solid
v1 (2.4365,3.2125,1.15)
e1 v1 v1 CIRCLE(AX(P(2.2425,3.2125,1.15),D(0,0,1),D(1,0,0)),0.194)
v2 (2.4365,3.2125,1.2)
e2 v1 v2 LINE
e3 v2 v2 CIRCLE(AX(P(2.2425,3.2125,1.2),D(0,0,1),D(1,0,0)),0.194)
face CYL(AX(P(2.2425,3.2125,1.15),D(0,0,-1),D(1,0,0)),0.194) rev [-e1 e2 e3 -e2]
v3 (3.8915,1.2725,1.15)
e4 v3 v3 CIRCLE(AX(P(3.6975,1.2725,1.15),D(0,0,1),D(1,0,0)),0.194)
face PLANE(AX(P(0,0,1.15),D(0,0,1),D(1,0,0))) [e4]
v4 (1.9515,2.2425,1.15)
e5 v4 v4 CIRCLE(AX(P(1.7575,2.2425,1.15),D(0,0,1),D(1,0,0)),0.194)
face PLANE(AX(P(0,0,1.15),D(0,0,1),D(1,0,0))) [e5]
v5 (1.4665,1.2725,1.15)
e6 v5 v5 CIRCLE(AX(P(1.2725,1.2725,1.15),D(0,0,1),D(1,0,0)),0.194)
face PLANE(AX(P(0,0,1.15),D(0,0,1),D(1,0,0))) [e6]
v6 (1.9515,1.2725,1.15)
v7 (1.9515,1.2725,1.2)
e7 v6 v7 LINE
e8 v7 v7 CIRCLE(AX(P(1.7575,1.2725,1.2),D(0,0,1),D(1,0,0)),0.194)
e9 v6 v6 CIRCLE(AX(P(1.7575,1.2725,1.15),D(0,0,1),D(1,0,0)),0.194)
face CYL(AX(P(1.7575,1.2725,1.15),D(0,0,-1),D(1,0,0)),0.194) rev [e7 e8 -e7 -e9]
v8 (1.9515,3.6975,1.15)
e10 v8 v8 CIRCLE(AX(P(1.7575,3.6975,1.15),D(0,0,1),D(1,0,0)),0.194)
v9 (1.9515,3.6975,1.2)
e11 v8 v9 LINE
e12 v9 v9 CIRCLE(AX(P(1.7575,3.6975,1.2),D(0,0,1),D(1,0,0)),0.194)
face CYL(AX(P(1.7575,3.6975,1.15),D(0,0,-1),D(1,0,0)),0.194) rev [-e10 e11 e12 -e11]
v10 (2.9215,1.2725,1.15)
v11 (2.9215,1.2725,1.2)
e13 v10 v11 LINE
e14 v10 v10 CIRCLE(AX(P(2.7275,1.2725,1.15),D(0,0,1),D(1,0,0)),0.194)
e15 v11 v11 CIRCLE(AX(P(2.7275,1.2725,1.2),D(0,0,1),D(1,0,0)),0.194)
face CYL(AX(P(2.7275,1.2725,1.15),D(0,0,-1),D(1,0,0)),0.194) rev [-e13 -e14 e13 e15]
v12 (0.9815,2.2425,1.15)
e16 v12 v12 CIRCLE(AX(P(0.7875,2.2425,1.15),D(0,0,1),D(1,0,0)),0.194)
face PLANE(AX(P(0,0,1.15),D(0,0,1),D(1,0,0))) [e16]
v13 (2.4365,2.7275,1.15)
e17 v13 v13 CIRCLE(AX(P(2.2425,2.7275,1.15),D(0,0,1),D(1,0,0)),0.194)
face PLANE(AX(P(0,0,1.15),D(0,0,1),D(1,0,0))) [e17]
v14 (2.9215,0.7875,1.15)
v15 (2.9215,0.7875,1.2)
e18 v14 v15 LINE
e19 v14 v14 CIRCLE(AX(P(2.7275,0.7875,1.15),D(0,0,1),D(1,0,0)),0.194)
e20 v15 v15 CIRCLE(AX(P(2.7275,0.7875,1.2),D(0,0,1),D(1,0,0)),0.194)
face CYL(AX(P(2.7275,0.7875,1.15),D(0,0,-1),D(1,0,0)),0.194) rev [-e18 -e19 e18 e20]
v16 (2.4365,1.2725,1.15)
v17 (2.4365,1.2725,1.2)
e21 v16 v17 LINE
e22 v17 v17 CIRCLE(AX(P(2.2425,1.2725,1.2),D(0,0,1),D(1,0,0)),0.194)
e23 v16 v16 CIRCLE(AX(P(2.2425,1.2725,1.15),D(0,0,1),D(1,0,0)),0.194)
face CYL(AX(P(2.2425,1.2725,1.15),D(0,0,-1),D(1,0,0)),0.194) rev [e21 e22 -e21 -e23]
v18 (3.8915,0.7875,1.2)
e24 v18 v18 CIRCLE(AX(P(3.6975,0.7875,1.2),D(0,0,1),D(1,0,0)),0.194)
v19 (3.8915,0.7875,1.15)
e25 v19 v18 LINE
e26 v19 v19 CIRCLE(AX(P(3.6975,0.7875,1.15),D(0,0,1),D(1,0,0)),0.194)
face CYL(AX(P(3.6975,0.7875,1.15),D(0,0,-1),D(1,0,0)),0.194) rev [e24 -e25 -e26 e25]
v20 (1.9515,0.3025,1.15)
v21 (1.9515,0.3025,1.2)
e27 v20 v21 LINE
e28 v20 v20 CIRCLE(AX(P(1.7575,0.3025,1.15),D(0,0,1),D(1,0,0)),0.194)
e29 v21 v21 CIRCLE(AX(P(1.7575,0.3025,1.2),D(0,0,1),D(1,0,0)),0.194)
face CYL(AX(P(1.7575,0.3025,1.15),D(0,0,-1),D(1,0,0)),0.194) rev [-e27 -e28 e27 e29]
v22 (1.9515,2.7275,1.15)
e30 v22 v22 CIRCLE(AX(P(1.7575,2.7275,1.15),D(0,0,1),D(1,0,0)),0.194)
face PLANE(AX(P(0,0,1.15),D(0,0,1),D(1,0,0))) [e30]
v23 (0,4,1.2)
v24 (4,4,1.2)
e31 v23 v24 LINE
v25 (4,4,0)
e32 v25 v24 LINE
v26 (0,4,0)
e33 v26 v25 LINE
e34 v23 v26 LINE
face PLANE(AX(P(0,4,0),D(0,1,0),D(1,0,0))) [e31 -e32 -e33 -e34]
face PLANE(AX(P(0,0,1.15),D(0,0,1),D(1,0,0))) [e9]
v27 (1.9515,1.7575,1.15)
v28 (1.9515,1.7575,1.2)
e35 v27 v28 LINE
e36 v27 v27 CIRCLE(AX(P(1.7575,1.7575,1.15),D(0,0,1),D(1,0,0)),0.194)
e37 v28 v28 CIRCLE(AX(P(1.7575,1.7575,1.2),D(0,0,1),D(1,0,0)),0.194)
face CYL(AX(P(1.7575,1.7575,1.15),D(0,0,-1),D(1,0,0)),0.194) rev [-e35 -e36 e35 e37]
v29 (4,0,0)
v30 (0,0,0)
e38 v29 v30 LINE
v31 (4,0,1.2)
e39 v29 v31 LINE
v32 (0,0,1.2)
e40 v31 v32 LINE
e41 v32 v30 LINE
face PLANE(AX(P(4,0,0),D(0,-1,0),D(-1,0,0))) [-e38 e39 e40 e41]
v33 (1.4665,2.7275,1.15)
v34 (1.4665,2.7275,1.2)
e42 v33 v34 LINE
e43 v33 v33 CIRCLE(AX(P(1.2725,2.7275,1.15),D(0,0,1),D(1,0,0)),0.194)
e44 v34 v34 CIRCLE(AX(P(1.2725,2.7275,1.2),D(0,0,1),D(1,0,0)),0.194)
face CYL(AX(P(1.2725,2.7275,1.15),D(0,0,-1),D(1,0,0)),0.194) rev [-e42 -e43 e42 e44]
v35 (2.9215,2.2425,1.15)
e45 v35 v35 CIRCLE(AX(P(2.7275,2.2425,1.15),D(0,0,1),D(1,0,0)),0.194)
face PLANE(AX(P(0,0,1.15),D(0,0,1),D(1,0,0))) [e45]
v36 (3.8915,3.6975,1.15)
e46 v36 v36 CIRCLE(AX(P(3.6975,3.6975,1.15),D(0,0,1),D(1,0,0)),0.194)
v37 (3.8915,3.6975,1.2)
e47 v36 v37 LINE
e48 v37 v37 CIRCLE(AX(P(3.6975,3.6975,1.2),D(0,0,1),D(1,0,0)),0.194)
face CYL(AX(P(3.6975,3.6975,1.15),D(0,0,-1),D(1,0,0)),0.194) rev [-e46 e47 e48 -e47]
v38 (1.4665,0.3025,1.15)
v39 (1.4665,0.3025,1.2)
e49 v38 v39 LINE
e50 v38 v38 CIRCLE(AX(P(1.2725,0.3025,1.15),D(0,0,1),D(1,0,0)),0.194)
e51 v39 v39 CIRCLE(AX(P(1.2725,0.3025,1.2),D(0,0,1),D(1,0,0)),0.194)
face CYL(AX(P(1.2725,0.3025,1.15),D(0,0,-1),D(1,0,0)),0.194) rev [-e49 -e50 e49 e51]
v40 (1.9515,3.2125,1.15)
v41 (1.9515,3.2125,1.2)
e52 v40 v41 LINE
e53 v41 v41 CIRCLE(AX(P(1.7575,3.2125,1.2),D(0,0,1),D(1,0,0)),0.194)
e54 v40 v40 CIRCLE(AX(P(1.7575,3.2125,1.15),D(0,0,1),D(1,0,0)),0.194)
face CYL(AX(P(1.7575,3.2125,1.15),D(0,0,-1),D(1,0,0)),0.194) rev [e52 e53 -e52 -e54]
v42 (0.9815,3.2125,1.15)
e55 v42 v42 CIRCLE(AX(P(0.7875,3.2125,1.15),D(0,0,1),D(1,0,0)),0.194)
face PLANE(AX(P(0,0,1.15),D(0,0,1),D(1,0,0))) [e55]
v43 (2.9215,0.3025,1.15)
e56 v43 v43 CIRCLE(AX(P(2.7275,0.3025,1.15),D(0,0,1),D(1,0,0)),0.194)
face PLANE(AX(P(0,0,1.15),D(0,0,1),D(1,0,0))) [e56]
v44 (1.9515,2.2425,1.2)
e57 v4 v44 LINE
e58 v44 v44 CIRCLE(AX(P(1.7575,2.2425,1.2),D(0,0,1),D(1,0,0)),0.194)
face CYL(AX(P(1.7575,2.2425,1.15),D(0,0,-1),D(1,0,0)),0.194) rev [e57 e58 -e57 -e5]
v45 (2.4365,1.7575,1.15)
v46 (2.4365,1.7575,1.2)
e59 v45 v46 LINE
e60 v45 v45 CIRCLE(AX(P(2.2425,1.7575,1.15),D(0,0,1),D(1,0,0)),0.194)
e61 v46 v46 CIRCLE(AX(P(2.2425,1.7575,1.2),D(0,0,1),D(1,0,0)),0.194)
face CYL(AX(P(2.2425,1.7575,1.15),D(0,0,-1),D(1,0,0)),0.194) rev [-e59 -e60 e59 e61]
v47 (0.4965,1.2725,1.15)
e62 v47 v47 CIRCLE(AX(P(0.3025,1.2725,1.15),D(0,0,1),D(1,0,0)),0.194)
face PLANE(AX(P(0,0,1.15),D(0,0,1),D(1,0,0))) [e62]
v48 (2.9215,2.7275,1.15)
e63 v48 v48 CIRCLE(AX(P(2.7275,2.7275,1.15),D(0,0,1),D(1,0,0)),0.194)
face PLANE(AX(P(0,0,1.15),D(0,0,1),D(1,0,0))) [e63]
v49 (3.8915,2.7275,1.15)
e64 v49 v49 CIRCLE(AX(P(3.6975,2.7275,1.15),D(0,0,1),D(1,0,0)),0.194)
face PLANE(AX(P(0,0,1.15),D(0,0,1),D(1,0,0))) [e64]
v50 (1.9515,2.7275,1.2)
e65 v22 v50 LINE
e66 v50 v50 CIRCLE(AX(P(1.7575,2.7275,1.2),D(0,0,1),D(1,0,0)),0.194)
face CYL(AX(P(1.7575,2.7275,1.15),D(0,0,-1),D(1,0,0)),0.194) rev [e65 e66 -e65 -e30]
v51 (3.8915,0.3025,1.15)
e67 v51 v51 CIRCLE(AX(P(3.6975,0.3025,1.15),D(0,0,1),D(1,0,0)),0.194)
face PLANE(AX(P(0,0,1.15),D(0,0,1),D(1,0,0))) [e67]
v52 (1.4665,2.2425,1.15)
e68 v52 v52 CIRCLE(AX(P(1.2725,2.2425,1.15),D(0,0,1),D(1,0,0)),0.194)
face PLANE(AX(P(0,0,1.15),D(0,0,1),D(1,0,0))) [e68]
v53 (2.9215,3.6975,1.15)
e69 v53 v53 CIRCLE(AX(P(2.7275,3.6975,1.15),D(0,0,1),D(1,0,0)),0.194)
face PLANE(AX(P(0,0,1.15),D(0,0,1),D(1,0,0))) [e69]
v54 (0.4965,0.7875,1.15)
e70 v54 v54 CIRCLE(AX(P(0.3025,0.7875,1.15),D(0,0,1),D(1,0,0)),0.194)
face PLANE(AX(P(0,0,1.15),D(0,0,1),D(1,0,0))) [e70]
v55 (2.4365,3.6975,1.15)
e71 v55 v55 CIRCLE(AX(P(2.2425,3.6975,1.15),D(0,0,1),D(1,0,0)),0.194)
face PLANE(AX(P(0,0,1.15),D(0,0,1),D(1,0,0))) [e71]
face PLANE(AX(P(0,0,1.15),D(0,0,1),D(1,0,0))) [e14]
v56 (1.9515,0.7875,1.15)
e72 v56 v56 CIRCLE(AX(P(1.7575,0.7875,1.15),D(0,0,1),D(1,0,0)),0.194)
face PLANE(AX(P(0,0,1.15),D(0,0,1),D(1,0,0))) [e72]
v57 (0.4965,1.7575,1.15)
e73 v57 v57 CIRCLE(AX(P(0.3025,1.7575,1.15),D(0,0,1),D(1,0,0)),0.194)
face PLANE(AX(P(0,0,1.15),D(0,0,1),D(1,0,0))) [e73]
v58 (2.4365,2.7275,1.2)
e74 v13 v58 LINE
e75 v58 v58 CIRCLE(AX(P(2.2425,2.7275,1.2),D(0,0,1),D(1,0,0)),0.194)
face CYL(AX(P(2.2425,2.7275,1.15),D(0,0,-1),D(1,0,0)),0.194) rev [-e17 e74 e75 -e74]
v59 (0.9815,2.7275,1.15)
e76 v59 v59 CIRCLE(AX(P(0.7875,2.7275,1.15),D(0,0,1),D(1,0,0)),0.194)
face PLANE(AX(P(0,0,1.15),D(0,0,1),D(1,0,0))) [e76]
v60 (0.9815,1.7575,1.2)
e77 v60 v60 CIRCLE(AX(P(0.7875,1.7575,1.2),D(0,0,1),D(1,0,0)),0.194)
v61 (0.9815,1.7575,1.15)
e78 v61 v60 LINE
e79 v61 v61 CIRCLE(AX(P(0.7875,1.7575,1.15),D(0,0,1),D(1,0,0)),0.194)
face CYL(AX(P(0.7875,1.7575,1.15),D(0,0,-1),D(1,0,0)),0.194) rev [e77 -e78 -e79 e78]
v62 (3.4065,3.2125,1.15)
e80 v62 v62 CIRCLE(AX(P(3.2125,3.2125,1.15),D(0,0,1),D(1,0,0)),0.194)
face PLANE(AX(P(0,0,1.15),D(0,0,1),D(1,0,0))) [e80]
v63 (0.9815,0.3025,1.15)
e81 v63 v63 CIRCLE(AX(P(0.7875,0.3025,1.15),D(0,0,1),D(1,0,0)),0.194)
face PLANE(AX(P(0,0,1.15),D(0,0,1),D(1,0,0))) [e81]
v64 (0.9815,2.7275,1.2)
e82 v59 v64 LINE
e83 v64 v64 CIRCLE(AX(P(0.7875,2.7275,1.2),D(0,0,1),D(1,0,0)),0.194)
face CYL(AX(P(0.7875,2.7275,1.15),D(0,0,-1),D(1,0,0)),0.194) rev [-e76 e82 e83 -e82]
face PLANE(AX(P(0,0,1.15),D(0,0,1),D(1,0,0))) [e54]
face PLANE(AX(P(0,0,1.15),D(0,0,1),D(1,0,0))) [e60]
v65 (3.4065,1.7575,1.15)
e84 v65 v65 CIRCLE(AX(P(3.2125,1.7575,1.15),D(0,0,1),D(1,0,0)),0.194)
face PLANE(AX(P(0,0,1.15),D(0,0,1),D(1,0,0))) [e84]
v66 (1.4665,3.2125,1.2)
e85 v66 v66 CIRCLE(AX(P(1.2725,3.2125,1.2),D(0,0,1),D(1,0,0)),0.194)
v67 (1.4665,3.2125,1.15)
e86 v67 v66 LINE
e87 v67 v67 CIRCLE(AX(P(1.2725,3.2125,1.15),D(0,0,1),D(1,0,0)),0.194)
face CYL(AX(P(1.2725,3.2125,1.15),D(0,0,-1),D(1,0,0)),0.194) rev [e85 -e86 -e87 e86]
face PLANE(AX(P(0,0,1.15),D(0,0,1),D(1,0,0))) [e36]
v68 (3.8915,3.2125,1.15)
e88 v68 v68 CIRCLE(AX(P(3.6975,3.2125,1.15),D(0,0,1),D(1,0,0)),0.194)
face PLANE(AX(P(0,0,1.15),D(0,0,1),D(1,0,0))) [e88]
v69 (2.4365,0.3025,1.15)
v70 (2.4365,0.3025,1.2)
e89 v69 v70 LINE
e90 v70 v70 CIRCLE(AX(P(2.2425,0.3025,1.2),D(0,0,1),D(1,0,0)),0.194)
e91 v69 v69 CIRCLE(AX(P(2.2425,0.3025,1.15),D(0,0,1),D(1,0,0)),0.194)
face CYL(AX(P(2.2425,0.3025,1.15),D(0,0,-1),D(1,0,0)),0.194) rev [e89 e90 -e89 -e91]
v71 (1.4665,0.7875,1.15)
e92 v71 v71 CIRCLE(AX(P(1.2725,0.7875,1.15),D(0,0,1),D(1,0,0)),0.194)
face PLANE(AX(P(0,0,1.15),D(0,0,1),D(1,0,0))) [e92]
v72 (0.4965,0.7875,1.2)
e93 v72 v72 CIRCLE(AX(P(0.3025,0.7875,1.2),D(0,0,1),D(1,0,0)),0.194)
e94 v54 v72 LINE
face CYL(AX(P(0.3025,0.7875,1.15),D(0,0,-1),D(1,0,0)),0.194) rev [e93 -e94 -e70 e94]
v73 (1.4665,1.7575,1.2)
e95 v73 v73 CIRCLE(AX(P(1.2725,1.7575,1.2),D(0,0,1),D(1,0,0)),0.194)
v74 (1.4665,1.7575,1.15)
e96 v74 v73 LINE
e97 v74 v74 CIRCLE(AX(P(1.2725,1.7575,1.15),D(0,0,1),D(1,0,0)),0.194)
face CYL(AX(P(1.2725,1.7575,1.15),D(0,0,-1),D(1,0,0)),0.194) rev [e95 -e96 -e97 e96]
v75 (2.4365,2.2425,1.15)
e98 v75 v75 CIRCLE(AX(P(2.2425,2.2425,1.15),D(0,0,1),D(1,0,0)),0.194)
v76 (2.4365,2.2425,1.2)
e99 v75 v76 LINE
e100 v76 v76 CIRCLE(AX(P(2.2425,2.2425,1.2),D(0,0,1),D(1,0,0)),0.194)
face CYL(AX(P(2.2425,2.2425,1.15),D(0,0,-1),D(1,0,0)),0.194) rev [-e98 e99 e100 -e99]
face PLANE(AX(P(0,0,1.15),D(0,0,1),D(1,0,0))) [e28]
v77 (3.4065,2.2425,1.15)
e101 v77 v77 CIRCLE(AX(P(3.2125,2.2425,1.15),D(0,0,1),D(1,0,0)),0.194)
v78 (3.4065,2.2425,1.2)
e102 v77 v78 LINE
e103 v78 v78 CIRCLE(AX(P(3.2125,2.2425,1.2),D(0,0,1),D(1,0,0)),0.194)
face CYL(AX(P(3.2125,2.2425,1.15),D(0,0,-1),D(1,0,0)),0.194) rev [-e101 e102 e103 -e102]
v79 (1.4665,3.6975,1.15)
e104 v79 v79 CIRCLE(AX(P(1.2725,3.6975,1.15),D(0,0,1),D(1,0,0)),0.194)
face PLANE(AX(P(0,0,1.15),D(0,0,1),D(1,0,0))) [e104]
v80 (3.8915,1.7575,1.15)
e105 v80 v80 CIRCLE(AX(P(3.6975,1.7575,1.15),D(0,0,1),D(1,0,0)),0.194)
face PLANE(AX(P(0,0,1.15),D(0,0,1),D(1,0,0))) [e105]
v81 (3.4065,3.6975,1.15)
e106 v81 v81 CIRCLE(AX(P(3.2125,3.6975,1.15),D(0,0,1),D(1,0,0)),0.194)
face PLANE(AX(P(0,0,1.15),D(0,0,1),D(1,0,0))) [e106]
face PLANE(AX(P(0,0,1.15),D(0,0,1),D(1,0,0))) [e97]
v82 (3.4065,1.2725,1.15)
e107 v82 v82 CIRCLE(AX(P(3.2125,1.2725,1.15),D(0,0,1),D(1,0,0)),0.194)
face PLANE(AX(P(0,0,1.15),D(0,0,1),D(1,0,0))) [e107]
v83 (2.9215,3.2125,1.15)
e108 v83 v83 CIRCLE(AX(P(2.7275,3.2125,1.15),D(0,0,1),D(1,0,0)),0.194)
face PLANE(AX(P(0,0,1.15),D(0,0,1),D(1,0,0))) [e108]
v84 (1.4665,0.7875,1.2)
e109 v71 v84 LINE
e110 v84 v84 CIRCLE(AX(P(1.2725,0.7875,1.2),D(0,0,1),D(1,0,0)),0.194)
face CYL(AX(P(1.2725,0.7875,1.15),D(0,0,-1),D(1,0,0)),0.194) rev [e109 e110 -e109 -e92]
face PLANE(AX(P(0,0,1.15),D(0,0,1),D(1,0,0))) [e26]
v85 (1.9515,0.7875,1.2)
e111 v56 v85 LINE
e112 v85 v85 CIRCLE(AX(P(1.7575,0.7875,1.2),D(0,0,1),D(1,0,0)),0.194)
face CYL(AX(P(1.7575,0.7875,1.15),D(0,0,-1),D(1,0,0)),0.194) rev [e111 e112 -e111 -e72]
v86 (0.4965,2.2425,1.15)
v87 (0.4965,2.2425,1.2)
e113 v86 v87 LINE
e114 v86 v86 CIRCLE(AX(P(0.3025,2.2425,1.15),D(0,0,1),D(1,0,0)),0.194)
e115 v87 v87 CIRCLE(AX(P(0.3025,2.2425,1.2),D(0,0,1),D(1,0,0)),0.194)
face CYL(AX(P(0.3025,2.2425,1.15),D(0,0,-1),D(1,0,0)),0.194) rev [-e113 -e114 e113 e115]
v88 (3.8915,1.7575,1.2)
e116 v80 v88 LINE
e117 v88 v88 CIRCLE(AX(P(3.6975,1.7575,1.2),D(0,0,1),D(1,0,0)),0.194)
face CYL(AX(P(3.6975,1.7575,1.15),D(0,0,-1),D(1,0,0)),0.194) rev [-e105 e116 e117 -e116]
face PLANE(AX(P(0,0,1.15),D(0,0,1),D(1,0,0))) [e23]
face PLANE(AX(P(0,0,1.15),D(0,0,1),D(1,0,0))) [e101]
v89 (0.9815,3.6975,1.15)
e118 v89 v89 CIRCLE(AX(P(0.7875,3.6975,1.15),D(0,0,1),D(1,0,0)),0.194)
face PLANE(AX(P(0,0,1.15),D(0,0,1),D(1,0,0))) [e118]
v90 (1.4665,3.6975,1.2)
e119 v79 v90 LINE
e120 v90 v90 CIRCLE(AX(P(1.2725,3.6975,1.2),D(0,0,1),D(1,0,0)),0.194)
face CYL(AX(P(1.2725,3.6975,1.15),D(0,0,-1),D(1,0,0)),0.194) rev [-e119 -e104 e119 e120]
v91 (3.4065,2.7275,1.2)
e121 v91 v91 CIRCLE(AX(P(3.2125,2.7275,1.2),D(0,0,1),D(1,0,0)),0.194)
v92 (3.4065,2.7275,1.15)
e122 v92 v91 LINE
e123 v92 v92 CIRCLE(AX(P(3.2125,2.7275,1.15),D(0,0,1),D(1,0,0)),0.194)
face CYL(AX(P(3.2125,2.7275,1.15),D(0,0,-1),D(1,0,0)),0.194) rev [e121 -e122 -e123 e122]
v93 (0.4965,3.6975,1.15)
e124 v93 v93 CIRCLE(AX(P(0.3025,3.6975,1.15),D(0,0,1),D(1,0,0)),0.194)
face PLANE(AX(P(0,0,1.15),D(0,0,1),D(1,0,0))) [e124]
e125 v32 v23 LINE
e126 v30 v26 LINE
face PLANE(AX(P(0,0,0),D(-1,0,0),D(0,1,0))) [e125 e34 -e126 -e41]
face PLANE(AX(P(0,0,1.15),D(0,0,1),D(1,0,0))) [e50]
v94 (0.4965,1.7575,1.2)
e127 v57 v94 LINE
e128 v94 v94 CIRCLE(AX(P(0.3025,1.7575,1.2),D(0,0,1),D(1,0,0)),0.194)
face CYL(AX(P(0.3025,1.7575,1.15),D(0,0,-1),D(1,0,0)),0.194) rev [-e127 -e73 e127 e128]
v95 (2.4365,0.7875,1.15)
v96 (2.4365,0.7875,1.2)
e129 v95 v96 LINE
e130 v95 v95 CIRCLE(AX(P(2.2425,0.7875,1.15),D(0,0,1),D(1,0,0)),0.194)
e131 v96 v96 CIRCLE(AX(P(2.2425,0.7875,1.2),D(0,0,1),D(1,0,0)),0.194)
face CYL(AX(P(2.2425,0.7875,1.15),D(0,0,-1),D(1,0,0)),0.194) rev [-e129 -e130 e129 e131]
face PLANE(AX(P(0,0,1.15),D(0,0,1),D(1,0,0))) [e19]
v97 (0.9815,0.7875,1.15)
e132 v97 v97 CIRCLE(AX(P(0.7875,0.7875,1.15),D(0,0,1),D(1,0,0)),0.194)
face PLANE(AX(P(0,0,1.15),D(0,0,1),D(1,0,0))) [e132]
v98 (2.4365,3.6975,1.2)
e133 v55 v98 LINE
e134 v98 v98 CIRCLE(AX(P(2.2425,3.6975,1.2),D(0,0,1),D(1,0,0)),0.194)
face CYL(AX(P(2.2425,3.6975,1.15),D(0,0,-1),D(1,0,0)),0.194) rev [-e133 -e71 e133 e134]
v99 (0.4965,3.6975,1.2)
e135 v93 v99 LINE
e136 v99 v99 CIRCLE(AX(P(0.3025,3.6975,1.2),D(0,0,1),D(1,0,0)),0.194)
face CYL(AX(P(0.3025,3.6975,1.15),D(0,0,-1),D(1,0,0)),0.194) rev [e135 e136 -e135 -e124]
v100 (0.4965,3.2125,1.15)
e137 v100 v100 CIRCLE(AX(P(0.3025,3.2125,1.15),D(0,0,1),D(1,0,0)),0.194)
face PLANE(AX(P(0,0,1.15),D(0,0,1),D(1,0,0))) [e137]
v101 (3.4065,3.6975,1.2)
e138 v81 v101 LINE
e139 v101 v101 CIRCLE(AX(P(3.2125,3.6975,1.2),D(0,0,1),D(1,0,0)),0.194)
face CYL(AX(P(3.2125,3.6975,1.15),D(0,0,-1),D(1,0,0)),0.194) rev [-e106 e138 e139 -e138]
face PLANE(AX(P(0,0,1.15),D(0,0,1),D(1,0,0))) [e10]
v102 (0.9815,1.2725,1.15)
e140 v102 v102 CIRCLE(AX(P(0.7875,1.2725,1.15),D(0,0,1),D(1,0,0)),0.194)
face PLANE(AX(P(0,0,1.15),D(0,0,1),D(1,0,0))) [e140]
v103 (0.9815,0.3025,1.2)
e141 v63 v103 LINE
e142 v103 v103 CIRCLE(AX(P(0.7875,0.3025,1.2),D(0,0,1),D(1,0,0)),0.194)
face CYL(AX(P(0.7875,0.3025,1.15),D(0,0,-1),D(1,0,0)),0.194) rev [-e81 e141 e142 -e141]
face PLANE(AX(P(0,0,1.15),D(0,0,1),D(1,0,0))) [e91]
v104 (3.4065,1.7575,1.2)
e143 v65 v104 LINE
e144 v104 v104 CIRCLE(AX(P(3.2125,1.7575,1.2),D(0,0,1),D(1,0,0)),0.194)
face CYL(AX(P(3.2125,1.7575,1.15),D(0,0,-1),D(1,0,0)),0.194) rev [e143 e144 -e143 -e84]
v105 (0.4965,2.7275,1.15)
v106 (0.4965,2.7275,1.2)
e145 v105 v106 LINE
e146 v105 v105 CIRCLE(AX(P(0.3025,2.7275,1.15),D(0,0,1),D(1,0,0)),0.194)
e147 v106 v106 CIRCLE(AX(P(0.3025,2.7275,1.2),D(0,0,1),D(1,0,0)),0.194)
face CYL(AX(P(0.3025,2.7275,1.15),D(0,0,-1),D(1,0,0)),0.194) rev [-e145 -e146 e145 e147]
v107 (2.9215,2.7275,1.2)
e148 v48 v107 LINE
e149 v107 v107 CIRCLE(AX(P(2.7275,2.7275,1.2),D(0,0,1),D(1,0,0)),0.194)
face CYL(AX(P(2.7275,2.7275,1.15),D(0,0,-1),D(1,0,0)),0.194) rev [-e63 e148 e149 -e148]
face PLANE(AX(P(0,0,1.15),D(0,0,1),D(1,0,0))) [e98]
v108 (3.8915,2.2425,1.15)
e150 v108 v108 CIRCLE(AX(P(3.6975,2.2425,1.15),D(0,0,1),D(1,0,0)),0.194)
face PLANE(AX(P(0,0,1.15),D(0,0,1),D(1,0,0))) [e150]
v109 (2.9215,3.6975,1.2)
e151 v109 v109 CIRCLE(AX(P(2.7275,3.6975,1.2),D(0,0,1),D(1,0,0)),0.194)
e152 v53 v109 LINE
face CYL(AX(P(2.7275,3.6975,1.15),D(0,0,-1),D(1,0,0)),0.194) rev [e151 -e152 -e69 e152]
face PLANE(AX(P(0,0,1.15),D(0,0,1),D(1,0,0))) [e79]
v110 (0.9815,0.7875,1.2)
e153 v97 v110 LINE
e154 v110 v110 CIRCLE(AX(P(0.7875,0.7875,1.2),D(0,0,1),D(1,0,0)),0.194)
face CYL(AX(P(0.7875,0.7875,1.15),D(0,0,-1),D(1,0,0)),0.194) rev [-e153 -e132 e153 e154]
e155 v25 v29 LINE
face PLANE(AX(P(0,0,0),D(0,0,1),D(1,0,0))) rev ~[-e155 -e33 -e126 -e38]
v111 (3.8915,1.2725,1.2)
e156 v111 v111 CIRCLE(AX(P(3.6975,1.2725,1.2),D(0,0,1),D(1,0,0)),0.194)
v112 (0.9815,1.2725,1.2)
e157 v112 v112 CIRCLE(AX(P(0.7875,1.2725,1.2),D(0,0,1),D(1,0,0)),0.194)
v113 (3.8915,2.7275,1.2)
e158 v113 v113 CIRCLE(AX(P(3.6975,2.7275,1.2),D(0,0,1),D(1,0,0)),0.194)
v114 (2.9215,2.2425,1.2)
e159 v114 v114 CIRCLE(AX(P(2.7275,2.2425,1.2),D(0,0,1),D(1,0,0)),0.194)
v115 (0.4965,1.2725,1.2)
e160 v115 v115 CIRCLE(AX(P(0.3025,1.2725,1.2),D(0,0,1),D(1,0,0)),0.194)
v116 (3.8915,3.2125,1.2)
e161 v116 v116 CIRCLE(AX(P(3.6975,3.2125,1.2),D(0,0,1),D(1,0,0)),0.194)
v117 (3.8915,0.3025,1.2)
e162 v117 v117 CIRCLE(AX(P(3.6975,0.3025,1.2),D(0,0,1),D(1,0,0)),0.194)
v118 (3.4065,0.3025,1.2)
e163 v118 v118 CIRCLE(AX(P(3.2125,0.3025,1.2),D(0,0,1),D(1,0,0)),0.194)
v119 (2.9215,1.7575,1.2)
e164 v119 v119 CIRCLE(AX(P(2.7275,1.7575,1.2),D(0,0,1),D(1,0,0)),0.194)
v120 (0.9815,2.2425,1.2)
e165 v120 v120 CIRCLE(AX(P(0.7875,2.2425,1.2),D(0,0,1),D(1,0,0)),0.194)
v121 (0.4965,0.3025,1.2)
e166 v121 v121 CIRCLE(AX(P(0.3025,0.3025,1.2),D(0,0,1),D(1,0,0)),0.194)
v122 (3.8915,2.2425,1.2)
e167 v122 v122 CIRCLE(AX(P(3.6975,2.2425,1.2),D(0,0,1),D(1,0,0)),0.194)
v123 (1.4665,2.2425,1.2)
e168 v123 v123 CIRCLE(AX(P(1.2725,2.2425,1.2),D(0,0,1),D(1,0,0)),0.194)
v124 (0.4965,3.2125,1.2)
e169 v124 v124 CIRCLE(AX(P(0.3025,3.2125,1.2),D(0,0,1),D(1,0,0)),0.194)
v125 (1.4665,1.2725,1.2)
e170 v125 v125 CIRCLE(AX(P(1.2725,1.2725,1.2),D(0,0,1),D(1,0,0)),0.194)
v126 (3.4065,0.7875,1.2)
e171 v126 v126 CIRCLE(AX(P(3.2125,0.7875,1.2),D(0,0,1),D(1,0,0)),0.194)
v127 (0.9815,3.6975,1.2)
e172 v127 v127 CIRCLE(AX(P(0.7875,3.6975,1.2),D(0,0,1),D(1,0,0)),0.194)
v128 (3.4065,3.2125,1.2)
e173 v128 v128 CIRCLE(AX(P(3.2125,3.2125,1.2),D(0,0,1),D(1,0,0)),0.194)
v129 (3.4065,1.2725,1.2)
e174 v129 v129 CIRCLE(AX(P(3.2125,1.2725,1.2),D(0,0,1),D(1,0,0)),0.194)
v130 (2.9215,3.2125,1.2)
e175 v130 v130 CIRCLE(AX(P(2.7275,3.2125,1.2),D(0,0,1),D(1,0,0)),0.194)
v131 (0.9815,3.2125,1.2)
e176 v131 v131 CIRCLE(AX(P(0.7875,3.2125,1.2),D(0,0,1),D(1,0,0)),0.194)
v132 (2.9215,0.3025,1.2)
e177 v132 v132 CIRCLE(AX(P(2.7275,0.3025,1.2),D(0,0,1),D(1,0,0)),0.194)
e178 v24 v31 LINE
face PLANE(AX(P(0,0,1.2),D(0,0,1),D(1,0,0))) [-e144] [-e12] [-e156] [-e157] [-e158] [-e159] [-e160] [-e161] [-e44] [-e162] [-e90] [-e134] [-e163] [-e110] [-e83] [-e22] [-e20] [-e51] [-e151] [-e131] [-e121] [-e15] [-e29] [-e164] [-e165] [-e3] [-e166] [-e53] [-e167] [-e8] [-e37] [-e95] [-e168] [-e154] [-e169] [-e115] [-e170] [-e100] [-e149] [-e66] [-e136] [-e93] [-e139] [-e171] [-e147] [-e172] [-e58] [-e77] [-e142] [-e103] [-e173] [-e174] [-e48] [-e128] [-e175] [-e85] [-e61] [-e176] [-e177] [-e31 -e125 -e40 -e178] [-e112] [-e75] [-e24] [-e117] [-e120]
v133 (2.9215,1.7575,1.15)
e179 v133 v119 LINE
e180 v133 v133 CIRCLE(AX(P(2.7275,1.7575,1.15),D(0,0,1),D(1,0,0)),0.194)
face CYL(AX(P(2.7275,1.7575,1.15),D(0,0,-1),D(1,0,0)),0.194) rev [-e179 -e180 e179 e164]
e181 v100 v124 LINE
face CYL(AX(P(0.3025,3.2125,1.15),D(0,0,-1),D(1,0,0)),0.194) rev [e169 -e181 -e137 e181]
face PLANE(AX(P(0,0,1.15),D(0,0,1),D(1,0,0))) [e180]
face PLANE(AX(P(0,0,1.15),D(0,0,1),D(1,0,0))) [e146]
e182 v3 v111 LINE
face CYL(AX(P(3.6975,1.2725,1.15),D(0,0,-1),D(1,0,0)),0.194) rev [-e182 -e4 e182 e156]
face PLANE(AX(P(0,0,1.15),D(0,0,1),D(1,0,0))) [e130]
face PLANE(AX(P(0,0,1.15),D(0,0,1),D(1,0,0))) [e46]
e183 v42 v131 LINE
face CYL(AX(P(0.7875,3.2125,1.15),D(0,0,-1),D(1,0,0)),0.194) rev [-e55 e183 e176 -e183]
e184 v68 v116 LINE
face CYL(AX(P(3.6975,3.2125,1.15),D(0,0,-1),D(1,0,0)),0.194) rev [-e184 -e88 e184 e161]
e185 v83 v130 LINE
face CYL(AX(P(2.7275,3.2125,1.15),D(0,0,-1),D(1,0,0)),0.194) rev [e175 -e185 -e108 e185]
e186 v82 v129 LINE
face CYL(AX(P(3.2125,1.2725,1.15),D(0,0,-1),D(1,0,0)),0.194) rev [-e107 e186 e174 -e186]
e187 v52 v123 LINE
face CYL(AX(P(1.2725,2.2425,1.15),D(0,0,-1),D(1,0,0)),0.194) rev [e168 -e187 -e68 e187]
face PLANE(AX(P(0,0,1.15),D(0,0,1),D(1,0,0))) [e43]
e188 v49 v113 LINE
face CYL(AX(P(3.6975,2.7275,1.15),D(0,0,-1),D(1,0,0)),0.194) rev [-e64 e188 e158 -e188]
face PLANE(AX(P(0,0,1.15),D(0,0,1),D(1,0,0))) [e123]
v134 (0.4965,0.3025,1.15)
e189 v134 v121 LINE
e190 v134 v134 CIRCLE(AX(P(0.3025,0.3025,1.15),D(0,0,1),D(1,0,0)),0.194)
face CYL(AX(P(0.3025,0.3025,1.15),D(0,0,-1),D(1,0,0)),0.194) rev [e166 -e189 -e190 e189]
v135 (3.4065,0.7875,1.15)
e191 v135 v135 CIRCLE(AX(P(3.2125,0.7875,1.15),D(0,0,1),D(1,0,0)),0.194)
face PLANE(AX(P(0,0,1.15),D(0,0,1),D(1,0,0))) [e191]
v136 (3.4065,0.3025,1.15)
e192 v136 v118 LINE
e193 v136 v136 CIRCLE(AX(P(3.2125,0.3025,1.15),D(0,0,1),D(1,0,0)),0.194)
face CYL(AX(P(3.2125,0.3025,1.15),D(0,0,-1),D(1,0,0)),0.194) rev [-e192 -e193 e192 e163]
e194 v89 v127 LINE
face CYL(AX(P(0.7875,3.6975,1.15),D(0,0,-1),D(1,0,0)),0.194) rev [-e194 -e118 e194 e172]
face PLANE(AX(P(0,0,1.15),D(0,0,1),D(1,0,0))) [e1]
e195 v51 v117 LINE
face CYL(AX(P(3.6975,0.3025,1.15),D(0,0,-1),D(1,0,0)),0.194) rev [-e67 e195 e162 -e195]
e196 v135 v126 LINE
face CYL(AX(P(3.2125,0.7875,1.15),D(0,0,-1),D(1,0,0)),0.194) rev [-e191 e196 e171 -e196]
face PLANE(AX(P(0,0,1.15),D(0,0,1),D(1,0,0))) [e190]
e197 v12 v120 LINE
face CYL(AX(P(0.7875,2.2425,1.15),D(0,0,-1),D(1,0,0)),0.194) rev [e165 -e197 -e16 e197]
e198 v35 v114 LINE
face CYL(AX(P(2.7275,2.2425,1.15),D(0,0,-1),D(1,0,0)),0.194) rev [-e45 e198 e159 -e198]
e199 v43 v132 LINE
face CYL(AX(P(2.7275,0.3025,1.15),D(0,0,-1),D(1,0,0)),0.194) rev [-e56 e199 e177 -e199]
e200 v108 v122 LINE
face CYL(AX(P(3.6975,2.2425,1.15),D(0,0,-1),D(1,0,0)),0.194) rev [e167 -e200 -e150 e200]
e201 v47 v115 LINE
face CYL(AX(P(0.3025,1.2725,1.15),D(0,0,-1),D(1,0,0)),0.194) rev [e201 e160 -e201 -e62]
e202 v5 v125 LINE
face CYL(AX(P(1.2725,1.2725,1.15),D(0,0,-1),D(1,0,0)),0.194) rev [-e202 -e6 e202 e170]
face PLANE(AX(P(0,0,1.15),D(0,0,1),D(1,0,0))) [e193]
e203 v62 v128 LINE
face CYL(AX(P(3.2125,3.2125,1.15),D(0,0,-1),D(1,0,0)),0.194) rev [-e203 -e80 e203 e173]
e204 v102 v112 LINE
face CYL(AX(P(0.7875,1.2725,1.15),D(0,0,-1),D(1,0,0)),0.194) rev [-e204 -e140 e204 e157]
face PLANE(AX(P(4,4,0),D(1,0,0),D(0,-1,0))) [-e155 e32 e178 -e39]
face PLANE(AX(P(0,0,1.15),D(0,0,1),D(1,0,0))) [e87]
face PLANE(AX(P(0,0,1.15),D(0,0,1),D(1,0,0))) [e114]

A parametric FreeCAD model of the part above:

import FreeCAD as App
import Part
import Sketcher

doc = App.newDocument("Part")
params = doc.addObject("Spreadsheet::Sheet", "Params")
for row, (alias, value) in enumerate([
    ("sketch1_width", "4 mm"),
    ("pad1_length", "1.15 mm"),
    ("sketch2_width", "4 mm"),
    ("pad2_length", "0.05 mm"),
], start=1):
    params.set(f"A{row}", alias)
    params.set(f"B{row}", "=" + value)
    params.setAlias(f"B{row}", alias)

body = doc.addObject("PartDesign::Body", "Body")

sketch1 = body.newObject("Sketcher::SketchObject", "Sketch")
sketch1.AttachmentSupport = (doc.getObject("XY_Plane"), [""])
sketch1.MapMode = "FlatFace"
sketch1.addGeometry(Part.LineSegment(App.Vector(0, 0, 0), App.Vector(4, 0, 0)), False)
sketch1.addGeometry(Part.LineSegment(App.Vector(4, 0, 0), App.Vector(4, 4, 0)), False)
sketch1.addGeometry(Part.LineSegment(App.Vector(4, 4, 0), App.Vector(0, 4, 0)), False)
sketch1.addGeometry(Part.LineSegment(App.Vector(0, 4, 0), App.Vector(0, 0, 0)), False)
sketch1.addConstraint(Sketcher.Constraint("Coincident", 0, 2, 1, 1))
sketch1.addConstraint(Sketcher.Constraint("Coincident", 1, 2, 2, 1))
sketch1.addConstraint(Sketcher.Constraint("Coincident", 2, 2, 3, 1))
sketch1.addConstraint(Sketcher.Constraint("Coincident", 3, 2, 0, 1))
sketch1.addConstraint(Sketcher.Constraint("Horizontal", 0))
sketch1.addConstraint(Sketcher.Constraint("Vertical", 1))
sketch1.addConstraint(Sketcher.Constraint("Horizontal", 2))
sketch1.addConstraint(Sketcher.Constraint("Vertical", 3))
sketch1.addConstraint(Sketcher.Constraint("Coincident", 3, 2, -1, 1))
sketch1.addConstraint(Sketcher.Constraint("Equal", 2, 1))
sketch1.addConstraint(Sketcher.Constraint("DistanceX", 0, 1, 0, 2, 4.0))
sketch1.setExpression("Constraints[10]", "Params.sketch1_width")
pad1 = body.newObject("PartDesign::Pad", "Pad")
pad1.Profile = sketch1
pad1.setExpression("Length", "Params.pad1_length")

sketch2 = body.newObject("Sketcher::SketchObject", "Sketch001")
sketch2.AttachmentSupport = (doc.getObject("XY_Plane"), [""])
sketch2.MapMode = "FlatFace"
sketch2.AttachmentOffset = App.Placement(App.Vector(0, 0, 1.15), App.Rotation())
sketch2.addGeometry(Part.LineSegment(App.Vector(0, 0, 0), App.Vector(4, 0, 0)), False)
sketch2.addGeometry(Part.LineSegment(App.Vector(4, 0, 0), App.Vector(4, 4, 0)), False)
sketch2.addGeometry(Part.LineSegment(App.Vector(4, 4, 0), App.Vector(0, 4, 0)), False)
sketch2.addGeometry(Part.LineSegment(App.Vector(0, 4, 0), App.Vector(0, 0, 0)), False)
sketch2.addGeometry(Part.Circle(App.Vector(0.3025, 0.3025, 0), App.Vector(0, 0, 1), 0.194), False)
sketch2.addGeometry(Part.Circle(App.Vector(0.7875, 0.3025, 0), App.Vector(0, 0, 1), 0.194), False)
sketch2.addGeometry(Part.Circle(App.Vector(0.3025, 0.7875, 0), App.Vector(0, 0, 1), 0.194), False)
sketch2.addGeometry(Part.Circle(App.Vector(0.7875, 0.7875, 0), App.Vector(0, 0, 1), 0.194), False)
sketch2.addGeometry(Part.Circle(App.Vector(1.2725, 0.3025, 0), App.Vector(0, 0, 1), 0.194), False)
sketch2.addGeometry(Part.Circle(App.Vector(1.7575, 0.3025, 0), App.Vector(0, 0, 1), 0.194), False)
sketch2.addGeometry(Part.Circle(App.Vector(1.2725, 0.7875, 0), App.Vector(0, 0, 1), 0.194), False)
sketch2.addGeometry(Part.Circle(App.Vector(1.7575, 0.7875, 0), App.Vector(0, 0, 1), 0.194), False)
sketch2.addGeometry(Part.Circle(App.Vector(0.3025, 1.2725, 0), App.Vector(0, 0, 1), 0.194), False)
sketch2.addGeometry(Part.Circle(App.Vector(0.7875, 1.2725, 0), App.Vector(0, 0, 1), 0.194), False)
sketch2.addGeometry(Part.Circle(App.Vector(0.3025, 1.7575, 0), App.Vector(0, 0, 1), 0.194), False)
sketch2.addGeometry(Part.Circle(App.Vector(0.7875, 1.7575, 0), App.Vector(0, 0, 1), 0.194), False)
sketch2.addGeometry(Part.Circle(App.Vector(1.2725, 1.2725, 0), App.Vector(0, 0, 1), 0.194), False)
sketch2.addGeometry(Part.Circle(App.Vector(1.7575, 1.2725, 0), App.Vector(0, 0, 1), 0.194), False)
sketch2.addGeometry(Part.Circle(App.Vector(1.2725, 1.7575, 0), App.Vector(0, 0, 1), 0.194), False)
sketch2.addGeometry(Part.Circle(App.Vector(1.7575, 1.7575, 0), App.Vector(0, 0, 1), 0.194), False)
sketch2.addGeometry(Part.Circle(App.Vector(2.2425, 0.3025, 0), App.Vector(0, 0, 1), 0.194), False)
sketch2.addGeometry(Part.Circle(App.Vector(2.7275, 0.3025, 0), App.Vector(0, 0, 1), 0.194), False)
sketch2.addGeometry(Part.Circle(App.Vector(2.2425, 0.7875, 0), App.Vector(0, 0, 1), 0.194), False)
sketch2.addGeometry(Part.Circle(App.Vector(2.7275, 0.7875, 0), App.Vector(0, 0, 1), 0.194), False)
sketch2.addGeometry(Part.Circle(App.Vector(3.2125, 0.3025, 0), App.Vector(0, 0, 1), 0.194), False)
sketch2.addGeometry(Part.Circle(App.Vector(3.6975, 0.3025, 0), App.Vector(0, 0, 1), 0.194), False)
sketch2.addGeometry(Part.Circle(App.Vector(3.2125, 0.7875, 0), App.Vector(0, 0, 1), 0.194), False)
sketch2.addGeometry(Part.Circle(App.Vector(3.6975, 0.7875, 0), App.Vector(0, 0, 1), 0.194), False)
sketch2.addGeometry(Part.Circle(App.Vector(2.2425, 1.2725, 0), App.Vector(0, 0, 1), 0.194), False)
sketch2.addGeometry(Part.Circle(App.Vector(2.7275, 1.2725, 0), App.Vector(0, 0, 1), 0.194), False)
sketch2.addGeometry(Part.Circle(App.Vector(2.2425, 1.7575, 0), App.Vector(0, 0, 1), 0.194), False)
sketch2.addGeometry(Part.Circle(App.Vector(2.7275, 1.7575, 0), App.Vector(0, 0, 1), 0.194), False)
sketch2.addGeometry(Part.Circle(App.Vector(3.2125, 1.2725, 0), App.Vector(0, 0, 1), 0.194), False)
sketch2.addGeometry(Part.Circle(App.Vector(3.6975, 1.2725, 0), App.Vector(0, 0, 1), 0.194), False)
sketch2.addGeometry(Part.Circle(App.Vector(3.2125, 1.7575, 0), App.Vector(0, 0, 1), 0.194), False)
sketch2.addGeometry(Part.Circle(App.Vector(3.6975, 1.7575, 0), App.Vector(0, 0, 1), 0.194), False)
sketch2.addGeometry(Part.Circle(App.Vector(0.3025, 2.2425, 0), App.Vector(0, 0, 1), 0.194), False)
sketch2.addGeometry(Part.Circle(App.Vector(0.7875, 2.2425, 0), App.Vector(0, 0, 1), 0.194), False)
sketch2.addGeometry(Part.Circle(App.Vector(0.3025, 2.7275, 0), App.Vector(0, 0, 1), 0.194), False)
sketch2.addGeometry(Part.Circle(App.Vector(0.7875, 2.7275, 0), App.Vector(0, 0, 1), 0.194), False)
sketch2.addGeometry(Part.Circle(App.Vector(1.2725, 2.2425, 0), App.Vector(0, 0, 1), 0.194), False)
sketch2.addGeometry(Part.Circle(App.Vector(1.7575, 2.2425, 0), App.Vector(0, 0, 1), 0.194), False)
sketch2.addGeometry(Part.Circle(App.Vector(1.2725, 2.7275, 0), App.Vector(0, 0, 1), 0.194), False)
sketch2.addGeometry(Part.Circle(App.Vector(1.7575, 2.7275, 0), App.Vector(0, 0, 1), 0.194), False)
sketch2.addGeometry(Part.Circle(App.Vector(0.3025, 3.2125, 0), App.Vector(0, 0, 1), 0.194), False)
sketch2.addGeometry(Part.Circle(App.Vector(0.7875, 3.2125, 0), App.Vector(0, 0, 1), 0.194), False)
sketch2.addGeometry(Part.Circle(App.Vector(0.3025, 3.6975, 0), App.Vector(0, 0, 1), 0.194), False)
sketch2.addGeometry(Part.Circle(App.Vector(0.7875, 3.6975, 0), App.Vector(0, 0, 1), 0.194), False)
sketch2.addGeometry(Part.Circle(App.Vector(1.2725, 3.2125, 0), App.Vector(0, 0, 1), 0.194), False)
sketch2.addGeometry(Part.Circle(App.Vector(1.7575, 3.2125, 0), App.Vector(0, 0, 1), 0.194), False)
sketch2.addGeometry(Part.Circle(App.Vector(1.2725, 3.6975, 0), App.Vector(0, 0, 1), 0.194), False)
sketch2.addGeometry(Part.Circle(App.Vector(1.7575, 3.6975, 0), App.Vector(0, 0, 1), 0.194), False)
sketch2.addGeometry(Part.Circle(App.Vector(2.2425, 2.2425, 0), App.Vector(0, 0, 1), 0.194), False)
sketch2.addGeometry(Part.Circle(App.Vector(2.7275, 2.2425, 0), App.Vector(0, 0, 1), 0.194), False)
sketch2.addGeometry(Part.Circle(App.Vector(2.2425, 2.7275, 0), App.Vector(0, 0, 1), 0.194), False)
sketch2.addGeometry(Part.Circle(App.Vector(2.7275, 2.7275, 0), App.Vector(0, 0, 1), 0.194), False)
sketch2.addGeometry(Part.Circle(App.Vector(3.2125, 2.2425, 0), App.Vector(0, 0, 1), 0.194), False)
sketch2.addGeometry(Part.Circle(App.Vector(3.6975, 2.2425, 0), App.Vector(0, 0, 1), 0.194), False)
sketch2.addGeometry(Part.Circle(App.Vector(3.2125, 2.7275, 0), App.Vector(0, 0, 1), 0.194), False)
sketch2.addGeometry(Part.Circle(App.Vector(3.6975, 2.7275, 0), App.Vector(0, 0, 1), 0.194), False)
sketch2.addGeometry(Part.Circle(App.Vector(2.2425, 3.2125, 0), App.Vector(0, 0, 1), 0.194), False)
sketch2.addGeometry(Part.Circle(App.Vector(2.7275, 3.2125, 0), App.Vector(0, 0, 1), 0.194), False)
sketch2.addGeometry(Part.Circle(App.Vector(2.2425, 3.6975, 0), App.Vector(0, 0, 1), 0.194), False)
sketch2.addGeometry(Part.Circle(App.Vector(2.7275, 3.6975, 0), App.Vector(0, 0, 1), 0.194), False)
sketch2.addGeometry(Part.Circle(App.Vector(3.2125, 3.2125, 0), App.Vector(0, 0, 1), 0.194), False)
sketch2.addGeometry(Part.Circle(App.Vector(3.6975, 3.2125, 0), App.Vector(0, 0, 1), 0.194), False)
sketch2.addGeometry(Part.Circle(App.Vector(3.2125, 3.6975, 0), App.Vector(0, 0, 1), 0.194), False)
sketch2.addGeometry(Part.Circle(App.Vector(3.6975, 3.6975, 0), App.Vector(0, 0, 1), 0.194), False)
sketch2.addConstraint(Sketcher.Constraint("Coincident", 0, 2, 1, 1))
sketch2.addConstraint(Sketcher.Constraint("Coincident", 1, 2, 2, 1))
sketch2.addConstraint(Sketcher.Constraint("Coincident", 2, 2, 3, 1))
sketch2.addConstraint(Sketcher.Constraint("Coincident", 3, 2, 0, 1))
sketch2.addConstraint(Sketcher.Constraint("Horizontal", 0))
sketch2.addConstraint(Sketcher.Constraint("Vertical", 1))
sketch2.addConstraint(Sketcher.Constraint("Horizontal", 2))
sketch2.addConstraint(Sketcher.Constraint("Vertical", 3))
sketch2.addConstraint(Sketcher.Constraint("Coincident", 3, 2, -1, 1))
sketch2.addConstraint(Sketcher.Constraint("Equal", 4, 5))
sketch2.addConstraint(Sketcher.Constraint("Equal", 5, 6))
sketch2.addConstraint(Sketcher.Constraint("Equal", 6, 7))
sketch2.addConstraint(Sketcher.Constraint("Equal", 7, 8))
sketch2.addConstraint(Sketcher.Constraint("Equal", 8, 9))
sketch2.addConstraint(Sketcher.Constraint("Equal", 9, 10))
sketch2.addConstraint(Sketcher.Constraint("Equal", 10, 11))
sketch2.addConstraint(Sketcher.Constraint("Equal", 11, 12))
sketch2.addConstraint(Sketcher.Constraint("Equal", 12, 13))
sketch2.addConstraint(Sketcher.Constraint("Equal", 13, 14))
sketch2.addConstraint(Sketcher.Constraint("Equal", 14, 15))
sketch2.addConstraint(Sketcher.Constraint("Equal", 15, 16))
sketch2.addConstraint(Sketcher.Constraint("Equal", 16, 17))
sketch2.addConstraint(Sketcher.Constraint("Equal", 17, 18))
sketch2.addConstraint(Sketcher.Constraint("Equal", 18, 19))
sketch2.addConstraint(Sketcher.Constraint("Equal", 19, 20))
sketch2.addConstraint(Sketcher.Constraint("Equal", 20, 21))
sketch2.addConstraint(Sketcher.Constraint("Equal", 21, 22))
sketch2.addConstraint(Sketcher.Constraint("Equal", 22, 23))
sketch2.addConstraint(Sketcher.Constraint("Equal", 23, 24))
sketch2.addConstraint(Sketcher.Constraint("Equal", 24, 25))
sketch2.addConstraint(Sketcher.Constraint("Equal", 25, 26))
sketch2.addConstraint(Sketcher.Constraint("Equal", 26, 27))
sketch2.addConstraint(Sketcher.Constraint("Equal", 27, 28))
sketch2.addConstraint(Sketcher.Constraint("Equal", 28, 29))
sketch2.addConstraint(Sketcher.Constraint("Equal", 29, 30))
sketch2.addConstraint(Sketcher.Constraint("Equal", 30, 31))
sketch2.addConstraint(Sketcher.Constraint("Equal", 31, 32))
sketch2.addConstraint(Sketcher.Constraint("Equal", 32, 33))
sketch2.addConstraint(Sketcher.Constraint("Equal", 33, 34))
sketch2.addConstraint(Sketcher.Constraint("Equal", 34, 35))
sketch2.addConstraint(Sketcher.Constraint("Equal", 35, 36))
sketch2.addConstraint(Sketcher.Constraint("Equal", 36, 37))
sketch2.addConstraint(Sketcher.Constraint("Equal", 37, 38))
sketch2.addConstraint(Sketcher.Constraint("Equal", 38, 39))
sketch2.addConstraint(Sketcher.Constraint("Equal", 39, 40))
sketch2.addConstraint(Sketcher.Constraint("Equal", 40, 41))
sketch2.addConstraint(Sketcher.Constraint("Equal", 41, 42))
sketch2.addConstraint(Sketcher.Constraint("Equal", 42, 43))
sketch2.addConstraint(Sketcher.Constraint("Equal", 43, 44))
sketch2.addConstraint(Sketcher.Constraint("Equal", 44, 45))
sketch2.addConstraint(Sketcher.Constraint("Equal", 45, 46))
sketch2.addConstraint(Sketcher.Constraint("Equal", 46, 47))
sketch2.addConstraint(Sketcher.Constraint("Equal", 47, 48))
sketch2.addConstraint(Sketcher.Constraint("Equal", 48, 49))
sketch2.addConstraint(Sketcher.Constraint("Equal", 49, 50))
sketch2.addConstraint(Sketcher.Constraint("Equal", 50, 51))
sketch2.addConstraint(Sketcher.Constraint("Equal", 51, 52))
sketch2.addConstraint(Sketcher.Constraint("Equal", 52, 53))
sketch2.addConstraint(Sketcher.Constraint("Equal", 53, 54))
sketch2.addConstraint(Sketcher.Constraint("Equal", 54, 55))
sketch2.addConstraint(Sketcher.Constraint("Equal", 55, 56))
sketch2.addConstraint(Sketcher.Constraint("Equal", 56, 57))
sketch2.addConstraint(Sketcher.Constraint("Equal", 57, 58))
sketch2.addConstraint(Sketcher.Constraint("Equal", 58, 59))
sketch2.addConstraint(Sketcher.Constraint("Equal", 59, 60))
sketch2.addConstraint(Sketcher.Constraint("Equal", 60, 61))
sketch2.addConstraint(Sketcher.Constraint("Equal", 61, 62))
sketch2.addConstraint(Sketcher.Constraint("Equal", 62, 63))
sketch2.addConstraint(Sketcher.Constraint("Equal", 63, 64))
sketch2.addConstraint(Sketcher.Constraint("Equal", 64, 65))
sketch2.addConstraint(Sketcher.Constraint("Equal", 65, 66))
sketch2.addConstraint(Sketcher.Constraint("Equal", 66, 67))
sketch2.addConstraint(Sketcher.Constraint("Horizontal", 4, 3, 5, 3))
sketch2.addConstraint(Sketcher.Constraint("Horizontal", 6, 3, 7, 3))
sketch2.addConstraint(Sketcher.Constraint("Horizontal", 5, 3, 8, 3))
sketch2.addConstraint(Sketcher.Constraint("Horizontal", 8, 3, 9, 3))
sketch2.addConstraint(Sketcher.Constraint("Horizontal", 7, 3, 10, 3))
sketch2.addConstraint(Sketcher.Constraint("Horizontal", 10, 3, 11, 3))
sketch2.addConstraint(Sketcher.Constraint("Horizontal", 12, 3, 13, 3))
sketch2.addConstraint(Sketcher.Constraint("Horizontal", 14, 3, 15, 3))
sketch2.addConstraint(Sketcher.Constraint("Horizontal", 13, 3, 16, 3))
sketch2.addConstraint(Sketcher.Constraint("Horizontal", 16, 3, 17, 3))
sketch2.addConstraint(Sketcher.Constraint("Horizontal", 15, 3, 18, 3))
sketch2.addConstraint(Sketcher.Constraint("Horizontal", 18, 3, 19, 3))
sketch2.addConstraint(Sketcher.Constraint("Horizontal", 9, 3, 20, 3))
sketch2.addConstraint(Sketcher.Constraint("Horizontal", 20, 3, 21, 3))
sketch2.addConstraint(Sketcher.Constraint("Horizontal", 11, 3, 22, 3))
sketch2.addConstraint(Sketcher.Constraint("Horizontal", 22, 3, 23, 3))
sketch2.addConstraint(Sketcher.Constraint("Horizontal", 21, 3, 24, 3))
sketch2.addConstraint(Sketcher.Constraint("Horizontal", 24, 3, 25, 3))
sketch2.addConstraint(Sketcher.Constraint("Horizontal", 23, 3, 26, 3))
sketch2.addConstraint(Sketcher.Constraint("Horizontal", 26, 3, 27, 3))
sketch2.addConstraint(Sketcher.Constraint("Horizontal", 17, 3, 28, 3))
sketch2.addConstraint(Sketcher.Constraint("Horizontal", 28, 3, 29, 3))
sketch2.addConstraint(Sketcher.Constraint("Horizontal", 19, 3, 30, 3))
sketch2.addConstraint(Sketcher.Constraint("Horizontal", 30, 3, 31, 3))
sketch2.addConstraint(Sketcher.Constraint("Horizontal", 29, 3, 32, 3))
sketch2.addConstraint(Sketcher.Constraint("Horizontal", 32, 3, 33, 3))
sketch2.addConstraint(Sketcher.Constraint("Horizontal", 31, 3, 34, 3))
sketch2.addConstraint(Sketcher.Constraint("Horizontal", 34, 3, 35, 3))
sketch2.addConstraint(Sketcher.Constraint("Horizontal", 36, 3, 37, 3))
sketch2.addConstraint(Sketcher.Constraint("Horizontal", 38, 3, 39, 3))
sketch2.addConstraint(Sketcher.Constraint("Horizontal", 37, 3, 40, 3))
sketch2.addConstraint(Sketcher.Constraint("Horizontal", 40, 3, 41, 3))
sketch2.addConstraint(Sketcher.Constraint("Horizontal", 39, 3, 42, 3))
sketch2.addConstraint(Sketcher.Constraint("Horizontal", 42, 3, 43, 3))
sketch2.addConstraint(Sketcher.Constraint("Horizontal", 44, 3, 45, 3))
sketch2.addConstraint(Sketcher.Constraint("Horizontal", 46, 3, 47, 3))
sketch2.addConstraint(Sketcher.Constraint("Horizontal", 45, 3, 48, 3))
sketch2.addConstraint(Sketcher.Constraint("Horizontal", 48, 3, 49, 3))
sketch2.addConstraint(Sketcher.Constraint("Horizontal", 47, 3, 50, 3))
sketch2.addConstraint(Sketcher.Constraint("Horizontal", 50, 3, 51, 3))
sketch2.addConstraint(Sketcher.Constraint("Horizontal", 41, 3, 52, 3))
sketch2.addConstraint(Sketcher.Constraint("Horizontal", 52, 3, 53, 3))
sketch2.addConstraint(Sketcher.Constraint("Horizontal", 43, 3, 54, 3))
sketch2.addConstraint(Sketcher.Constraint("Horizontal", 54, 3, 55, 3))
sketch2.addConstraint(Sketcher.Constraint("Horizontal", 53, 3, 56, 3))
sketch2.addConstraint(Sketcher.Constraint("Horizontal", 56, 3, 57, 3))
sketch2.addConstraint(Sketcher.Constraint("Horizontal", 55, 3, 58, 3))
sketch2.addConstraint(Sketcher.Constraint("Horizontal", 58, 3, 59, 3))
sketch2.addConstraint(Sketcher.Constraint("Horizontal", 49, 3, 60, 3))
sketch2.addConstraint(Sketcher.Constraint("Horizontal", 60, 3, 61, 3))
sketch2.addConstraint(Sketcher.Constraint("Horizontal", 51, 3, 62, 3))
sketch2.addConstraint(Sketcher.Constraint("Horizontal", 62, 3, 63, 3))
sketch2.addConstraint(Sketcher.Constraint("Horizontal", 61, 3, 64, 3))
sketch2.addConstraint(Sketcher.Constraint("Horizontal", 64, 3, 65, 3))
sketch2.addConstraint(Sketcher.Constraint("Horizontal", 63, 3, 66, 3))
sketch2.addConstraint(Sketcher.Constraint("Horizontal", 66, 3, 67, 3))
sketch2.addConstraint(Sketcher.Constraint("Vertical", 4, 3, 6, 3))
sketch2.addConstraint(Sketcher.Constraint("Vertical", 5, 3, 7, 3))
sketch2.addConstraint(Sketcher.Constraint("Vertical", 8, 3, 10, 3))
sketch2.addConstraint(Sketcher.Constraint("Vertical", 9, 3, 11, 3))
sketch2.addConstraint(Sketcher.Constraint("Vertical", 6, 3, 12, 3))
sketch2.addConstraint(Sketcher.Constraint("Vertical", 7, 3, 13, 3))
sketch2.addConstraint(Sketcher.Constraint("Vertical", 12, 3, 14, 3))
sketch2.addConstraint(Sketcher.Constraint("Vertical", 13, 3, 15, 3))
sketch2.addConstraint(Sketcher.Constraint("Vertical", 10, 3, 16, 3))
sketch2.addConstraint(Sketcher.Constraint("Vertical", 11, 3, 17, 3))
sketch2.addConstraint(Sketcher.Constraint("Vertical", 16, 3, 18, 3))
sketch2.addConstraint(Sketcher.Constraint("Vertical", 17, 3, 19, 3))
sketch2.addConstraint(Sketcher.Constraint("Vertical", 20, 3, 22, 3))
sketch2.addConstraint(Sketcher.Constraint("Vertical", 21, 3, 23, 3))
sketch2.addConstraint(Sketcher.Constraint("Vertical", 24, 3, 26, 3))
sketch2.addConstraint(Sketcher.Constraint("Vertical", 25, 3, 27, 3))
sketch2.addConstraint(Sketcher.Constraint("Vertical", 22, 3, 28, 3))
sketch2.addConstraint(Sketcher.Constraint("Vertical", 23, 3, 29, 3))
sketch2.addConstraint(Sketcher.Constraint("Vertical", 28, 3, 30, 3))
sketch2.addConstraint(Sketcher.Constraint("Vertical", 29, 3, 31, 3))
sketch2.addConstraint(Sketcher.Constraint("Vertical", 26, 3, 32, 3))
sketch2.addConstraint(Sketcher.Constraint("Vertical", 27, 3, 33, 3))
sketch2.addConstraint(Sketcher.Constraint("Vertical", 32, 3, 34, 3))
sketch2.addConstraint(Sketcher.Constraint("Vertical", 33, 3, 35, 3))
sketch2.addConstraint(Sketcher.Constraint("Vertical", 14, 3, 36, 3))
sketch2.addConstraint(Sketcher.Constraint("Vertical", 15, 3, 37, 3))
sketch2.addConstraint(Sketcher.Constraint("Vertical", 36, 3, 38, 3))
sketch2.addConstraint(Sketcher.Constraint("Vertical", 37, 3, 39, 3))
sketch2.addConstraint(Sketcher.Constraint("Vertical", 18, 3, 40, 3))
sketch2.addConstraint(Sketcher.Constraint("Vertical", 19, 3, 41, 3))
sketch2.addConstraint(Sketcher.Constraint("Vertical", 40, 3, 42, 3))
sketch2.addConstraint(Sketcher.Constraint("Vertical", 41, 3, 43, 3))
sketch2.addConstraint(Sketcher.Constraint("Vertical", 38, 3, 44, 3))
sketch2.addConstraint(Sketcher.Constraint("Vertical", 39, 3, 45, 3))
sketch2.addConstraint(Sketcher.Constraint("Vertical", 44, 3, 46, 3))
sketch2.addConstraint(Sketcher.Constraint("Vertical", 45, 3, 47, 3))
sketch2.addConstraint(Sketcher.Constraint("Vertical", 42, 3, 48, 3))
sketch2.addConstraint(Sketcher.Constraint("Vertical", 43, 3, 49, 3))
sketch2.addConstraint(Sketcher.Constraint("Vertical", 48, 3, 50, 3))
sketch2.addConstraint(Sketcher.Constraint("Vertical", 49, 3, 51, 3))
sketch2.addConstraint(Sketcher.Constraint("Vertical", 30, 3, 52, 3))
sketch2.addConstraint(Sketcher.Constraint("Vertical", 31, 3, 53, 3))
sketch2.addConstraint(Sketcher.Constraint("Vertical", 52, 3, 54, 3))
sketch2.addConstraint(Sketcher.Constraint("Vertical", 53, 3, 55, 3))
sketch2.addConstraint(Sketcher.Constraint("Vertical", 34, 3, 56, 3))
sketch2.addConstraint(Sketcher.Constraint("Vertical", 35, 3, 57, 3))
sketch2.addConstraint(Sketcher.Constraint("Vertical", 56, 3, 58, 3))
sketch2.addConstraint(Sketcher.Constraint("Vertical", 57, 3, 59, 3))
sketch2.addConstraint(Sketcher.Constraint("Vertical", 54, 3, 60, 3))
sketch2.addConstraint(Sketcher.Constraint("Vertical", 55, 3, 61, 3))
sketch2.addConstraint(Sketcher.Constraint("Vertical", 60, 3, 62, 3))
sketch2.addConstraint(Sketcher.Constraint("Vertical", 61, 3, 63, 3))
sketch2.addConstraint(Sketcher.Constraint("Vertical", 58, 3, 64, 3))
sketch2.addConstraint(Sketcher.Constraint("Vertical", 59, 3, 65, 3))
sketch2.addConstraint(Sketcher.Constraint("Vertical", 64, 3, 66, 3))
sketch2.addConstraint(Sketcher.Constraint("Vertical", 65, 3, 67, 3))
sketch2.addConstraint(Sketcher.Constraint("Equal", 2, 1))
sketch2.addConstraint(Sketcher.Constraint("DistanceX", 0, 1, 0, 2, 4.0))
sketch2.addConstraint(Sketcher.Constraint("Diameter", 4, 0.388))
sketch2.addConstraint(Sketcher.Constraint("DistanceX", -1, 1, 4, 3, 0.3025))
sketch2.addConstraint(Sketcher.Constraint("DistanceY", -1, 1, 4, 3, 0.3025))
sketch2.addConstraint(Sketcher.Constraint("DistanceX", -1, 1, 5, 3, 0.7875))
sketch2.addConstraint(Sketcher.Constraint("DistanceY", -1, 1, 6, 3, 0.7875))
sketch2.addConstraint(Sketcher.Constraint("DistanceX", -1, 1, 8, 3, 1.2725))
sketch2.addConstraint(Sketcher.Constraint("DistanceX", -1, 1, 9, 3, 1.7575))
sketch2.addConstraint(Sketcher.Constraint("DistanceY", -1, 1, 12, 3, 1.2725))
sketch2.addConstraint(Sketcher.Constraint("DistanceY", -1, 1, 14, 3, 1.7575))
sketch2.addConstraint(Sketcher.Constraint("DistanceX", -1, 1, 20, 3, 2.2425))
sketch2.addConstraint(Sketcher.Constraint("DistanceX", -1, 1, 21, 3, 2.7275))
sketch2.addConstraint(Sketcher.Constraint("DistanceX", -1, 1, 24, 3, 3.2125))
sketch2.addConstraint(Sketcher.Constraint("DistanceX", -1, 1, 25, 3, 3.6975))
sketch2.addConstraint(Sketcher.Constraint("DistanceY", -1, 1, 36, 3, 2.2425))
sketch2.addConstraint(Sketcher.Constraint("DistanceY", -1, 1, 38, 3, 2.7275))
sketch2.addConstraint(Sketcher.Constraint("DistanceY", -1, 1, 44, 3, 3.2125))
sketch2.addConstraint(Sketcher.Constraint("DistanceY", -1, 1, 46, 3, 3.6975))
sketch2.setExpression("Constraints[185]", "Params.sketch2_width")
pad2 = body.newObject("PartDesign::Pad", "Pad001")
pad2.Profile = sketch2
pad2.setExpression("Length", "Params.pad2_length")

doc.recompute()
